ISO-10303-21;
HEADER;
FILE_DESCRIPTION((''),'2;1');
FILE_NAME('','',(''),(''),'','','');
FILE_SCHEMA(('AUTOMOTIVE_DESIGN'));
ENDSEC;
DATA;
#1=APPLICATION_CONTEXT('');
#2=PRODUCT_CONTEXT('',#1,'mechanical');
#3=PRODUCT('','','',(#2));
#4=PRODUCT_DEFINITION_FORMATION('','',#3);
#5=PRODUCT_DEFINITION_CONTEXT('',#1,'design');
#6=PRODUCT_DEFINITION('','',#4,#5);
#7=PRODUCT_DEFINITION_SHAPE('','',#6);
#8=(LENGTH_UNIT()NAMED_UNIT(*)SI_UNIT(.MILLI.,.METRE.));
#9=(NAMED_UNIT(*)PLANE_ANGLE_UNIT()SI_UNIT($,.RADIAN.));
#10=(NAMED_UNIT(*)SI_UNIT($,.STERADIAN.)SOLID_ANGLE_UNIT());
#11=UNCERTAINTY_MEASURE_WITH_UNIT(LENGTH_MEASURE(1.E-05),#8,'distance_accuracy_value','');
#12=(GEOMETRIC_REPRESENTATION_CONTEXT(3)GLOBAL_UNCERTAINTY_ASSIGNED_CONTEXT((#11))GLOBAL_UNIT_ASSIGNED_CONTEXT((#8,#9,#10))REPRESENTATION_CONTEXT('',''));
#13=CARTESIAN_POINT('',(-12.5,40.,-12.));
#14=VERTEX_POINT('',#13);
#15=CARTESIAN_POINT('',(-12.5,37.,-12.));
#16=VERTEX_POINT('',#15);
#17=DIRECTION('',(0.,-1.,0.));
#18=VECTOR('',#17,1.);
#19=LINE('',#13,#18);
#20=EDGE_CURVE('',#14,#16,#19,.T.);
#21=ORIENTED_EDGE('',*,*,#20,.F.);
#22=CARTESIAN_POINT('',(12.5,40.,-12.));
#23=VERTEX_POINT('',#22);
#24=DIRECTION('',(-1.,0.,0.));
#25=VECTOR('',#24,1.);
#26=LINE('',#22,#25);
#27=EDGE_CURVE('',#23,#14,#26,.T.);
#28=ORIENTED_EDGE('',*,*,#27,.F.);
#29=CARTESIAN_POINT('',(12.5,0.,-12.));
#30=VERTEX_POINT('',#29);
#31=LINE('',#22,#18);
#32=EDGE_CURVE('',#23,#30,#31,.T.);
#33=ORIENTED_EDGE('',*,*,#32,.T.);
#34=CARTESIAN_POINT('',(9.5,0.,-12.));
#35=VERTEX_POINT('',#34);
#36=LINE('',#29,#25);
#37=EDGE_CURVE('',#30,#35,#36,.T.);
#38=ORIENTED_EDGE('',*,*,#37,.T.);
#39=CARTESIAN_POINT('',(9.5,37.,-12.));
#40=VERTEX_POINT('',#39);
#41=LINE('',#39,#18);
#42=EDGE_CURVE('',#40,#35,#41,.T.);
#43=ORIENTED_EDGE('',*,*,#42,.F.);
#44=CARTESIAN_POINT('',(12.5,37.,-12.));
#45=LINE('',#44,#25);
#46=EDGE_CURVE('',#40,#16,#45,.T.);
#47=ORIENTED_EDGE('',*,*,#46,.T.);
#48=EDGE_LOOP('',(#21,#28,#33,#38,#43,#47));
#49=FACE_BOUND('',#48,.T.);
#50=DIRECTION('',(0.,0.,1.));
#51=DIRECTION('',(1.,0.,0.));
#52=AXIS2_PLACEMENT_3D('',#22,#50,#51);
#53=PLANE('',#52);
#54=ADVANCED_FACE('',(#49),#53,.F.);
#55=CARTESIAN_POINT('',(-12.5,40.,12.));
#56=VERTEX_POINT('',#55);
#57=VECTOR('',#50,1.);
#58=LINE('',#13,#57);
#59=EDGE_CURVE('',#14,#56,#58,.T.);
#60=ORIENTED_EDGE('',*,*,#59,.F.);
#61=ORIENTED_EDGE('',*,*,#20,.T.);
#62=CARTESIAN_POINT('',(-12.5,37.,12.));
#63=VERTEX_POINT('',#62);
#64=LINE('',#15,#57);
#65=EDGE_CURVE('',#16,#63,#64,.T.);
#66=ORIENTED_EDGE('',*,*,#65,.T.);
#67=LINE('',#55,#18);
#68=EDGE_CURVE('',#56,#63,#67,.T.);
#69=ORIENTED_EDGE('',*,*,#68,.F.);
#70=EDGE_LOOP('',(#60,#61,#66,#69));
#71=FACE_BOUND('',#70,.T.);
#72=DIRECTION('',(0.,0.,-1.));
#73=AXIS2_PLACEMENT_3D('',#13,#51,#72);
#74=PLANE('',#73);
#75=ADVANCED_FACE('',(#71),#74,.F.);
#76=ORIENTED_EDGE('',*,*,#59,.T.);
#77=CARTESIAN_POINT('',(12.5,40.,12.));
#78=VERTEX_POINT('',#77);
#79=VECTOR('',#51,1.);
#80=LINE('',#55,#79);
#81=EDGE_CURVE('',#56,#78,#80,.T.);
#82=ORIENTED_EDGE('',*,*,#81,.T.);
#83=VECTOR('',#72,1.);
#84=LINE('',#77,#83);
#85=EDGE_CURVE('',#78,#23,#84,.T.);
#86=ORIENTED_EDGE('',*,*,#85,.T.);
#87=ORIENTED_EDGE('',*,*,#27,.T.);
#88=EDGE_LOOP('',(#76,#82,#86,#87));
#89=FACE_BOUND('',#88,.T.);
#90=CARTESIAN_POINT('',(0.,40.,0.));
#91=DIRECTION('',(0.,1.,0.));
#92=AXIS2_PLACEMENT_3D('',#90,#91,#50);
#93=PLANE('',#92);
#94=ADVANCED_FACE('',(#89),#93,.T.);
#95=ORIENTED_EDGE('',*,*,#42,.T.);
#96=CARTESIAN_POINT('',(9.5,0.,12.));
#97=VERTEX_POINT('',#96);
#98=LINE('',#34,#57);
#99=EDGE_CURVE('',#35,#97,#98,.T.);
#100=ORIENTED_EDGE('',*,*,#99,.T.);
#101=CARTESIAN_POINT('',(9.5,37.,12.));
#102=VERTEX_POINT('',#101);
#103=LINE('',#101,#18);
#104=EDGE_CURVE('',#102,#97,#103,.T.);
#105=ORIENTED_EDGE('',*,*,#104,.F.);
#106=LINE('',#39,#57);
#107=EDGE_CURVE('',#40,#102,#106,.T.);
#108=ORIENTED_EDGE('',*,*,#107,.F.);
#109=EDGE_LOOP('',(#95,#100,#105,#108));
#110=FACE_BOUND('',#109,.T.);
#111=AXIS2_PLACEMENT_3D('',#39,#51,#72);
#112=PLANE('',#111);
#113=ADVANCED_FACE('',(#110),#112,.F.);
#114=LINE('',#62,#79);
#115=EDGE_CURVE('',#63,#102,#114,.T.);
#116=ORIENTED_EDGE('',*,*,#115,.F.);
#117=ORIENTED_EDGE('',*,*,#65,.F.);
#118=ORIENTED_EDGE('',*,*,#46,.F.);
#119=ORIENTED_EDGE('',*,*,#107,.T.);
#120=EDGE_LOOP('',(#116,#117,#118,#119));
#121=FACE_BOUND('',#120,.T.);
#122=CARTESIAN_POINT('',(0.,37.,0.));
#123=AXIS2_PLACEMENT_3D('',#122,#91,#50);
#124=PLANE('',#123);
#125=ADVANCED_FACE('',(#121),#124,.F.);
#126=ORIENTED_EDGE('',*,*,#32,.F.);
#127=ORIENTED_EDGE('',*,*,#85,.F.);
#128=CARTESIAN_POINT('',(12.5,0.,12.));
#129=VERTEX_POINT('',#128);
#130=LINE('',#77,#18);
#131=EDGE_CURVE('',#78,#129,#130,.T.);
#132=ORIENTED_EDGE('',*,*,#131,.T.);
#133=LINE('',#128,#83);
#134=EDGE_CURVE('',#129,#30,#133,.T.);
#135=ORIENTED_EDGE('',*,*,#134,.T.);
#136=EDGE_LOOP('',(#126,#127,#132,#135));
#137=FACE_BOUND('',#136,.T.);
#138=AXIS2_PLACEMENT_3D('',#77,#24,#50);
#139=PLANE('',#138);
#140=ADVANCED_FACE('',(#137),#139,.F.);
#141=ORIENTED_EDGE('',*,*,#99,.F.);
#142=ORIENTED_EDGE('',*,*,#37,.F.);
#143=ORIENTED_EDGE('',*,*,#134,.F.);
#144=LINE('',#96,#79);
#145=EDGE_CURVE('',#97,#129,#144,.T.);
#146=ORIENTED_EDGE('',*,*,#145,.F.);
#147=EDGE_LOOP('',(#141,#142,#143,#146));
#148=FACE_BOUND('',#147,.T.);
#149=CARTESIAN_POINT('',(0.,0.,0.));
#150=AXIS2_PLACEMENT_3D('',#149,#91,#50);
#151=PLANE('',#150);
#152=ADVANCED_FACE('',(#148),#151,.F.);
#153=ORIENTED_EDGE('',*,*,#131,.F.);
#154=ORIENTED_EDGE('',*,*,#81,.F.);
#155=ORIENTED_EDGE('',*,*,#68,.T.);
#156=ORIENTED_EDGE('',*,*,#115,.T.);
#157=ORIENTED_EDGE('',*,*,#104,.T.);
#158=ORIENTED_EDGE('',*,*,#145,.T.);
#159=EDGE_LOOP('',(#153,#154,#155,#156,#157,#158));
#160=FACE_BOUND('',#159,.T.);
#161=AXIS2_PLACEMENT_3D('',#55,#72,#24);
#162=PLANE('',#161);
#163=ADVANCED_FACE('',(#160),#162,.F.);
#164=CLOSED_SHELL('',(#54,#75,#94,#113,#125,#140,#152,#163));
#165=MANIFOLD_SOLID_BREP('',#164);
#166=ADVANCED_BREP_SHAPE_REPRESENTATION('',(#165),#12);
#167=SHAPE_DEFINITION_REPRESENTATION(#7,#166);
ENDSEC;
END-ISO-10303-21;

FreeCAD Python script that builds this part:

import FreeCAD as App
import Part
import Sketcher
from FreeCAD import Vector
Q = App.Units.Quantity


def add_polygon(sketch, points):
    """Adds a closed chain of lines whose ends are joined by coincident constraints."""
    first, n = sketch.GeometryCount, len(points)
    for a, b in zip(points, points[1:] + points[:1]):
        sketch.addGeometry(Part.LineSegment(App.Vector(*a, 0), App.Vector(*b, 0)), False)
    for i in range(n):
        sketch.addConstraint(Sketcher.Constraint("Coincident", first + i, 2, first + (i + 1) % n, 1))

doc = App.newDocument("Part")
body = doc.addObject("PartDesign::Body", "Body")

# Sketch on XZ plane
sketch1 = body.newObject("Sketcher::SketchObject", "Sketch")
sketch1.AttachmentSupport = (doc.getObject("XZ_Plane"), [""])
sketch1.MapMode = "FlatFace"
sketch1.AttachmentOffset = App.Placement(Vector(0, 0, -37), App.Rotation())
add_polygon(sketch1, [(-12.5, -12), (-12.5, 12), (12.5, 12), (12.5, -12)])  # lines 0-3
sketch1.addConstraint([
    Sketcher.Constraint("Vertical", 0),
    Sketcher.Constraint("Horizontal", 1),
    Sketcher.Constraint("Vertical", 2),
    Sketcher.Constraint("Horizontal", 3),
    Sketcher.Constraint("Symmetric", 0, 2, 2, 2, -1, 1),
    Sketcher.Constraint("DistanceX", 1, 1, 1, 2, Q("25 mm")),
    Sketcher.Constraint("DistanceY", 0, 1, 0, 2, Q("24 mm")),
])
pad1 = body.newObject("PartDesign::Pad", "Pad")
pad1.Profile = sketch1
pad1.Length = 3
pad1.Reversed = True

# Sketch on XZ plane
sketch2 = body.newObject("Sketcher::SketchObject", "Sketch001")
sketch2.AttachmentSupport = (doc.getObject("XZ_Plane"), [""])
sketch2.MapMode = "FlatFace"
add_polygon(sketch2, [(9.5, -12), (9.5, 12), (12.5, 12), (12.5, -12)])  # lines 0-3
sketch2.addConstraint([
    Sketcher.Constraint("Vertical", 0),
    Sketcher.Constraint("Horizontal", 1),
    Sketcher.Constraint("Vertical", 2),
    Sketcher.Constraint("Horizontal", 3),
    Sketcher.Constraint("DistanceX", 1, 1, 1, 2, Q("3 mm")),
    Sketcher.Constraint("DistanceY", 0, 1, 0, 2, Q("24 mm")),
    Sketcher.Constraint("DistanceY", -1, 1, 0, 2, Q("12 mm")),
    Sketcher.Constraint("DistanceX", -1, 1, 0, 2, Q("9.5 mm")),
])
pad2 = body.newObject("PartDesign::Pad", "Pad001")
pad2.Profile = sketch2
pad2.Length = 37
pad2.Reversed = True

doc.recompute()
